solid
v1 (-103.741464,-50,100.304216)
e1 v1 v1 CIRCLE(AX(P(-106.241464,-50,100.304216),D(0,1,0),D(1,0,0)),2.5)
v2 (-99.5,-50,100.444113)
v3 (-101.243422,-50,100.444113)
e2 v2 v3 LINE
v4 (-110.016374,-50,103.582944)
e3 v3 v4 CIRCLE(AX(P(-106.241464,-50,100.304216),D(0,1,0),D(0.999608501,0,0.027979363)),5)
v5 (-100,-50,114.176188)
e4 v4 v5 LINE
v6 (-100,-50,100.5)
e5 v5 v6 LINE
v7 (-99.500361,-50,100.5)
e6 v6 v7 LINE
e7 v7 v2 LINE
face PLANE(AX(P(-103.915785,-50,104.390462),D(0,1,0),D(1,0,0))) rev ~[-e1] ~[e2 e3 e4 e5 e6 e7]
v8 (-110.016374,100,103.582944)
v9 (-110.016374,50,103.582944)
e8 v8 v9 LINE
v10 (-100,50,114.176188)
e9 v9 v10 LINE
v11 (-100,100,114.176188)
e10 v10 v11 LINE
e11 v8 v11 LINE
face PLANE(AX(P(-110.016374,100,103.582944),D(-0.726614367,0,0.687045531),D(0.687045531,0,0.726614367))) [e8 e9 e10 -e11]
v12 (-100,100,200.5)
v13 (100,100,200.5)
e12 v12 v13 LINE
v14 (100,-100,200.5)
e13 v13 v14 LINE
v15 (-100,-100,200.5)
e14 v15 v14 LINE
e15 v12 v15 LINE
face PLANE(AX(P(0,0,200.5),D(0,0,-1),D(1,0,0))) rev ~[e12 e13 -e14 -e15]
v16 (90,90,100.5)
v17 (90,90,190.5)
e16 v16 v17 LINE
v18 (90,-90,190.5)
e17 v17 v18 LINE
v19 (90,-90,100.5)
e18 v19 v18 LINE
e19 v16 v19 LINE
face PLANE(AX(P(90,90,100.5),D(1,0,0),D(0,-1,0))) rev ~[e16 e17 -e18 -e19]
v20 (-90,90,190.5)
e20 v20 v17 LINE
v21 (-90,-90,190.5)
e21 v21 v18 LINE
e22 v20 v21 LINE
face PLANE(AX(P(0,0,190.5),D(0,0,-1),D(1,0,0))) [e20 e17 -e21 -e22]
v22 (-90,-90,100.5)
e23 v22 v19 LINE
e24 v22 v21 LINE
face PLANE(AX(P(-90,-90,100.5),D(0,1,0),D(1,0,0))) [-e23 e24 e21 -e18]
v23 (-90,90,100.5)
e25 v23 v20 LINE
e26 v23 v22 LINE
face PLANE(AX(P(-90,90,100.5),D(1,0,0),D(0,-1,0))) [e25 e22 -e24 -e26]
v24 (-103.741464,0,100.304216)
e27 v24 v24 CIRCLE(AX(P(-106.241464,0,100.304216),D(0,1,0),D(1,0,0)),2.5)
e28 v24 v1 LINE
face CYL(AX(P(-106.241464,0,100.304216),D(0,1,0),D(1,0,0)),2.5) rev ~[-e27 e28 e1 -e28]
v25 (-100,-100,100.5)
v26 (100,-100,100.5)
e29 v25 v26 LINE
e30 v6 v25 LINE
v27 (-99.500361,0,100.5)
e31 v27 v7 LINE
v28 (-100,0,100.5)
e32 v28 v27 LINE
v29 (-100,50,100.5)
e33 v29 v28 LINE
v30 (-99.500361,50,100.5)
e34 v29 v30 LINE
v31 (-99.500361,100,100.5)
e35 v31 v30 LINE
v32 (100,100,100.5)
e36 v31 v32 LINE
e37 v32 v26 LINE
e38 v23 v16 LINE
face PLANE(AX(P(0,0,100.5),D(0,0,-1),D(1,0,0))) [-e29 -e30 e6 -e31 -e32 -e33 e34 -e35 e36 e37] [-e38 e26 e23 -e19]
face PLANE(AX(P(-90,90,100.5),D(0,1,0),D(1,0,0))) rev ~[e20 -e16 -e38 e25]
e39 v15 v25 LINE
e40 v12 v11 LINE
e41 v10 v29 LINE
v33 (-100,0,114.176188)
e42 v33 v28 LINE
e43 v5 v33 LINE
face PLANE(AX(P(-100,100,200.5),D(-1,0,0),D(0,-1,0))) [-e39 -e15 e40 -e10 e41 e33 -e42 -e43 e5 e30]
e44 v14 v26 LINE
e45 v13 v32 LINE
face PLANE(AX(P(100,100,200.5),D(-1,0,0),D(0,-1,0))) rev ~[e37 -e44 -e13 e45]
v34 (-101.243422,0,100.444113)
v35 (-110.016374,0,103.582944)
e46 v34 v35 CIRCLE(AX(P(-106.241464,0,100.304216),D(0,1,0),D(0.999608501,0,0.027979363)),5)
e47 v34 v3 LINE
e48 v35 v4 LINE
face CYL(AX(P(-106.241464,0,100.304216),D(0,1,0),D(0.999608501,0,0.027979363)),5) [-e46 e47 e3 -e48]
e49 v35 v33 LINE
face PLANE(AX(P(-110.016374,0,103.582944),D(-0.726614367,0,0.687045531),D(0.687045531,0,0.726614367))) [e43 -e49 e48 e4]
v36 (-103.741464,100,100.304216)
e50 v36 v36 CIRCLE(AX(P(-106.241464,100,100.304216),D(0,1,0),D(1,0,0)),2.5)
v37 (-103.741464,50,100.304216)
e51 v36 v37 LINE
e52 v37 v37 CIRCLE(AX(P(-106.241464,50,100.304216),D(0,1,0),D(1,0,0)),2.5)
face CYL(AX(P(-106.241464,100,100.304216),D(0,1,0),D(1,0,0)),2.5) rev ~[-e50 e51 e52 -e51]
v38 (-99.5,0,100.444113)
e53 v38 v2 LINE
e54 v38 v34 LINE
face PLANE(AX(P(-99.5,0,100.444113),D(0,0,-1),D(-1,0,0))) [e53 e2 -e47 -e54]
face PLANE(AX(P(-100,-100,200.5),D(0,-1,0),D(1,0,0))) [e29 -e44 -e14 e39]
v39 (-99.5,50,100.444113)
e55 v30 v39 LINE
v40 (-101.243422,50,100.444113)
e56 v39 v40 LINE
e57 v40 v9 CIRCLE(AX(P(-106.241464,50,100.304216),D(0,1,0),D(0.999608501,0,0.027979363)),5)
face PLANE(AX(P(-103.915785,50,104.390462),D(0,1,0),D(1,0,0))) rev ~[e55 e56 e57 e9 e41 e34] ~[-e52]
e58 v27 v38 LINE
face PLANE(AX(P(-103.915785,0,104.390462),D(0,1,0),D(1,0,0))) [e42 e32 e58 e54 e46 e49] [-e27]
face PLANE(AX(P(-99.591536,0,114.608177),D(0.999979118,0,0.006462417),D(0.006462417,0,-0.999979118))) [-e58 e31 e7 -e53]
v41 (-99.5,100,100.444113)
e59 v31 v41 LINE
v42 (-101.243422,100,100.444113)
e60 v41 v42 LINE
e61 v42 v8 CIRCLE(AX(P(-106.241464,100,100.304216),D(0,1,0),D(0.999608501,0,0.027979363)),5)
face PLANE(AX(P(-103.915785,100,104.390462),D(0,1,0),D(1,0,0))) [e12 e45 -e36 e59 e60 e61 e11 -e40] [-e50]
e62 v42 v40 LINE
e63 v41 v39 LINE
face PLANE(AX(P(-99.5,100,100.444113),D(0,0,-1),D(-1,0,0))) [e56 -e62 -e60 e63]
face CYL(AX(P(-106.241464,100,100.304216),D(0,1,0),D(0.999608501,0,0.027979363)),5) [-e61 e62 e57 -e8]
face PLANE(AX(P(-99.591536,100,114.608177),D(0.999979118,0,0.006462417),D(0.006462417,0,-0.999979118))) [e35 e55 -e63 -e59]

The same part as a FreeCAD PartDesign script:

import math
import FreeCAD as App
import Part
import Sketcher

V = App.Vector

doc = App.newDocument("Part")
body = doc.addObject("PartDesign::Body", "Body")

# Sketch on XY plane
sketch1 = doc.addObject("Sketcher::SketchObject", "Sketch")
body.addObject(sketch1)
sketch1.AttachmentSupport = (doc.XY_Plane, [""])
sketch1.MapMode = "FlatFace"
sketch1.addGeometry([
    Part.LineSegment(V(-100, 100, 0), V(-100, -100, 0)),
    Part.LineSegment(V(-100, -100, 0), V(100, -100, 0)),
    Part.LineSegment(V(100, -100, 0), V(100, 100, 0)),
    Part.LineSegment(V(100, 100, 0), V(-100, 100, 0)),
], False)
sketch1.addConstraint([
    Sketcher.Constraint("Coincident", 0, 2, 1, 1),
    Sketcher.Constraint("Coincident", 1, 2, 2, 1),
    Sketcher.Constraint("Coincident", 2, 2, 3, 1),
    Sketcher.Constraint("Coincident", 3, 2, 0, 1),
    Sketcher.Constraint("Vertical", 0),
    Sketcher.Constraint("Horizontal", 1),
    Sketcher.Constraint("Vertical", 2),
    Sketcher.Constraint("Horizontal", 3),
    Sketcher.Constraint("Symmetric", 0, 2, 2, 2, -1, 1),
    Sketcher.Constraint("Equal", 3, 0),
    Sketcher.Constraint("DistanceX", 1, 1, 1, 2, 200.0),
])
pad1 = doc.addObject("PartDesign::Pad", "Pad")
body.addObject(pad1)
pad1.Profile = sketch1
pad1.Length = 100

# Sketch on XY plane
sketch2 = doc.addObject("Sketcher::SketchObject", "Sketch001")
body.addObject(sketch2)
sketch2.AttachmentSupport = (doc.XY_Plane, [""])
sketch2.MapMode = "FlatFace"
sketch2.AttachmentOffset = App.Placement(V(0, 0, 100), App.Rotation())
sketch2.addGeometry([
    Part.LineSegment(V(-90, 90, 0), V(-90, -90, 0)),
    Part.LineSegment(V(-90, -90, 0), V(90, -90, 0)),
    Part.LineSegment(V(90, -90, 0), V(90, 90, 0)),
    Part.LineSegment(V(90, 90, 0), V(-90, 90, 0)),
], False)
sketch2.addConstraint([
    Sketcher.Constraint("Coincident", 0, 2, 1, 1),
    Sketcher.Constraint("Coincident", 1, 2, 2, 1),
    Sketcher.Constraint("Coincident", 2, 2, 3, 1),
    Sketcher.Constraint("Coincident", 3, 2, 0, 1),
    Sketcher.Constraint("Vertical", 0),
    Sketcher.Constraint("Horizontal", 1),
    Sketcher.Constraint("Vertical", 2),
    Sketcher.Constraint("Horizontal", 3),
    Sketcher.Constraint("Symmetric", 0, 2, 2, 2, -1, 1),
    Sketcher.Constraint("Equal", 3, 0),
    Sketcher.Constraint("DistanceX", 1, 1, 1, 2, 180.0),
])
pocket1 = doc.addObject("PartDesign::Pocket", "Pocket")
body.addObject(pocket1)
pocket1.Profile = sketch2
pocket1.Length = 90

# Sketch on XZ plane
sketch3 = doc.addObject("Sketcher::SketchObject", "Sketch002")
body.addObject(sketch3)
sketch3.AttachmentSupport = (doc.XZ_Plane, [""])
sketch3.MapMode = "FlatFace"
sketch3.AttachmentOffset = App.Placement(V(0, 0, 100), App.Rotation())
sketch3.addGeometry([
    Part.ArcOfCircle(Part.Circle(V(-106.241464, 100.195784, 0), V(0, 0, 1), 5), math.radians(-1.603309), math.radians(220.976208)),  # 0
    Part.LineSegment(V(-110.016374, 96.917056, 0), V(-99.591536, 85.891823, 0)),  # 1
    Part.LineSegment(V(-99.591536, 85.891823, 0), V(-99.5, 100.055887, 0)),  # 2
    Part.LineSegment(V(-99.5, 100.055887, 0), V(-101.243422, 100.055887, 0)),  # 3
    Part.Circle(V(-106.241464, 100.195784, 0), V(0, 0, 1), 2.5),  # 4
], False)
sketch3.addConstraint([
    Sketcher.Constraint("Coincident", 0, 2, 1, 1),
    Sketcher.Constraint("Coincident", 1, 2, 2, 1),
    Sketcher.Constraint("Coincident", 2, 2, 3, 1),
    Sketcher.Constraint("Coincident", 3, 2, 0, 1),
    Sketcher.Constraint("Horizontal", 3),
    Sketcher.Constraint("Coincident", 4, 3, 0, 3),
    Sketcher.Constraint("Diameter", 4, 5.0),
    Sketcher.Constraint("Radius", 0, 5.0),
    Sketcher.Constraint("DistanceX", 2, 2, -1, 1, 99.5),
    Sketcher.Constraint("DistanceX", 3, 2, 3, 1, 1.743422),
    Sketcher.Constraint("Distance", 1, 15.173431),
    Sketcher.Constraint("Distance", 2, 14.16436),
    Sketcher.Constraint("DistanceX", 0, 2, 0, 3, 3.77491),
    Sketcher.Constraint("DistanceX", 0, 2, 1, 2, 10.424838),
    Sketcher.Constraint("DistanceY", -1, 1, 0, 3, 100.195784),
])
pad2 = doc.addObject("PartDesign::Pad", "Pad001")
body.addObject(pad2)
pad2.Profile = sketch3
pad2.Length = 50
pad2.Reversed = True
doc.recompute()

linearpattern = doc.addObject("PartDesign::LinearPattern", "LinearPattern")
body.addObject(linearpattern)
linearpattern.Originals = [pad2]
linearpattern.Direction = (doc.Y_Axis, [""])
linearpattern.Mode = "offset"
linearpattern.Offset = 100
linearpattern.Occurrences = 2
body.Tip = linearpattern
body2 = doc.addObject("PartDesign::Body", "Body001")
doc.recompute()

body.Placement = App.Placement(V(0, 0, 200.5), App.Rotation(V(1, 0, 0), 180))
boolean = doc.addObject("PartDesign::Boolean", "Boolean")
body2.addObject(boolean)
boolean.Type = "Fuse"
boolean.addObjects([body])

doc.recompute()
